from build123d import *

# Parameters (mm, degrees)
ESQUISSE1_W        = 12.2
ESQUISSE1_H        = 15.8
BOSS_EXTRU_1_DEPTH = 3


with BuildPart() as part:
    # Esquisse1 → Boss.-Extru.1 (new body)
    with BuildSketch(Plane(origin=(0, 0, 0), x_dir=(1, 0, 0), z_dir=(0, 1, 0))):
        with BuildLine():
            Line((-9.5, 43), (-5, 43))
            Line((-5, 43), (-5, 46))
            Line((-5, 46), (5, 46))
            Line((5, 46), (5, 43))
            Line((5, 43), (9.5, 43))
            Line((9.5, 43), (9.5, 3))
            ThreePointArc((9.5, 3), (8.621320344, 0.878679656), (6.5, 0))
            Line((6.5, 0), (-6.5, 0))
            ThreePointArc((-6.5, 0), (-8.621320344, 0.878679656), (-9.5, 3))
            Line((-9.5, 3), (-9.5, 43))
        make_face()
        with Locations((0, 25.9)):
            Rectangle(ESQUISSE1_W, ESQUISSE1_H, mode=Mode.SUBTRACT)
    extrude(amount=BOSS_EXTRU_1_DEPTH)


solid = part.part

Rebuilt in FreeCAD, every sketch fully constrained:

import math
import FreeCAD as App
import Part
import Sketcher
from FreeCAD import Vector
Q = App.Units.Quantity


def add_polygon(sketch, points):
    """Adds a closed chain of lines whose ends are joined by coincident constraints."""
    first, n = sketch.GeometryCount, len(points)
    for a, b in zip(points, points[1:] + points[:1]):
        sketch.addGeometry(Part.LineSegment(App.Vector(*a, 0), App.Vector(*b, 0)), False)
    for i in range(n):
        sketch.addConstraint(Sketcher.Constraint("Coincident", first + i, 2, first + (i + 1) % n, 1))

doc = App.newDocument("Part")
body = doc.addObject("PartDesign::Body", "Body")

sketch1 = body.newObject("Sketcher::SketchObject", "Sketch")
sketch1.AttachmentSupport = (doc.getObject("XZ_Plane"), [""])
sketch1.MapMode = "FlatFace"
sketch1.addGeometry(Part.LineSegment(Vector(-5, -43, 0), Vector(-9.5, -43, 0)), False)
sketch1.addGeometry(Part.LineSegment(Vector(-9.5, -43, 0), Vector(-9.5, -3, 0)), False)
sketch1.addGeometry(Part.ArcOfCircle(Part.Circle(Vector(-6.5, -3, 0), Vector(0, 0, 1), 3), math.radians(90), math.radians(180)), False)
sketch1.addGeometry(Part.LineSegment(Vector(-6.5, 0, 0), Vector(6.5, 0, 0)), False)
sketch1.addGeometry(Part.ArcOfCircle(Part.Circle(Vector(6.5, -3, 0), Vector(0, 0, 1), 3), math.radians(0), math.radians(90)), False)
sketch1.addGeometry(Part.LineSegment(Vector(9.5, -3, 0), Vector(9.5, -43, 0)), False)
sketch1.addGeometry(Part.LineSegment(Vector(9.5, -43, 0), Vector(5, -43, 0)), False)
sketch1.addGeometry(Part.LineSegment(Vector(5, -43, 0), Vector(5, -46, 0)), False)
sketch1.addGeometry(Part.LineSegment(Vector(5, -46, 0), Vector(-5, -46, 0)), False)
sketch1.addGeometry(Part.LineSegment(Vector(-5, -46, 0), Vector(-5, -43, 0)), False)
add_polygon(sketch1, [(-6.1, -18), (-6.1, -33.8), (6.1, -33.8), (6.1, -18)])
sketch1.addConstraint([
    Sketcher.Constraint("Coincident", 0, 2, 1, 1),
    Sketcher.Constraint("Tangent", 1, 2, 2, 2),
    Sketcher.Constraint("Tangent", 2, 1, 3, 1),
    Sketcher.Constraint("Tangent", 3, 2, 4, 2),
    Sketcher.Constraint("Tangent", 4, 1, 5, 1),
    Sketcher.Constraint("Coincident", 5, 2, 6, 1),
    Sketcher.Constraint("Coincident", 6, 2, 7, 1),
    Sketcher.Constraint("Coincident", 7, 2, 8, 1),
    Sketcher.Constraint("Coincident", 8, 2, 9, 1),
    Sketcher.Constraint("Coincident", 9, 2, 0, 1),
    Sketcher.Constraint("Horizontal", 0),
    Sketcher.Constraint("Vertical", 1),
    Sketcher.Constraint("Horizontal", 3),
    Sketcher.Constraint("Vertical", 5),
    Sketcher.Constraint("Horizontal", 6),
    Sketcher.Constraint("Vertical", 7),
    Sketcher.Constraint("Horizontal", 8),
    Sketcher.Constraint("Vertical", 9),
    Sketcher.Constraint("Vertical", 10),
    Sketcher.Constraint("Horizontal", 11),
    Sketcher.Constraint("Vertical", 12),
    Sketcher.Constraint("Horizontal", 13),
    Sketcher.Constraint("Equal", 2, 4),
    Sketcher.Constraint("Symmetric", 2, 1, 3, 2, -1, 1),
    Sketcher.Constraint("Symmetric", 6, 2, 9, 2, -2),
    Sketcher.Constraint("Radius", 2, Q("3 mm")),
    Sketcher.Constraint("DistanceX", 3, 1, 3, 2, Q("13 mm")),
    Sketcher.Constraint("DistanceX", 8, 2, 8, 1, Q("10 mm")),
    Sketcher.Constraint("DistanceY", 1, 1, 1, 2, Q("40 mm")),
    Sketcher.Constraint("DistanceY", 7, 2, 7, 1, Q("3 mm")),
    Sketcher.Constraint("DistanceX", 11, 1, 11, 2, Q("12.2 mm")),
    Sketcher.Constraint("DistanceY", 10, 2, 10, 1, Q("15.8 mm")),
    Sketcher.Constraint("DistanceY", 12, 2, -1, 1, Q("18 mm")),
    Sketcher.Constraint("DistanceX", 10, 2, -1, 1, Q("6.1 mm")),
])
pad1 = body.newObject("PartDesign::Pad", "Pad")
pad1.Profile = sketch1
pad1.Length = 3
pad1.Reversed = True

doc.recompute()
